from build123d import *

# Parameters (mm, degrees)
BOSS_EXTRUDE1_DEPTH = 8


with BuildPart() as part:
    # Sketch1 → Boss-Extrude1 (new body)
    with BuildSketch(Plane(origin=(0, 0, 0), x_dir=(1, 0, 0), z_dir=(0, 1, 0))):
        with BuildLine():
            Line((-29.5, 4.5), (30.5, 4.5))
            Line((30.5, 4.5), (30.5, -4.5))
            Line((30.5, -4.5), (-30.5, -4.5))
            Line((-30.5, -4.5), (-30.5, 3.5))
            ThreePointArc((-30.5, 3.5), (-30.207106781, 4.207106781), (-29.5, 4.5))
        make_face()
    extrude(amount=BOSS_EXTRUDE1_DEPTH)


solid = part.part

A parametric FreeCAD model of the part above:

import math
import FreeCAD as App
import Part
import Sketcher

doc = App.newDocument("Part")
params = doc.addObject("Spreadsheet::Sheet", "Params")
for row, (alias, value) in enumerate([
    ("sketch1_radius", "1 mm"),
    ("sketch1_width", "60 mm"),
    ("sketch1_height", "8 mm"),
    ("pad1_length", "8 mm"),
], start=1):
    params.set(f"A{row}", alias)
    params.set(f"B{row}", "=" + value)
    params.setAlias(f"B{row}", alias)

body = doc.addObject("PartDesign::Body", "Body")

# Sketch on XZ plane
sketch1 = body.newObject("Sketcher::SketchObject", "Sketch")
sketch1.AttachmentSupport = (doc.getObject("XZ_Plane"), [""])
sketch1.MapMode = "FlatFace"
sketch1.addGeometry([
    Part.LineSegment(App.Vector(30.5, -4.5, 0), App.Vector(-29.5, -4.5, 0)),  # 0
    Part.ArcOfCircle(Part.Circle(App.Vector(-29.5, -3.5, 0), App.Vector(0, 0, 1), 1), math.radians(-180), math.radians(-90)),  # 1
    Part.LineSegment(App.Vector(-30.5, -3.5, 0), App.Vector(-30.5, 4.5, 0)),  # 2
    Part.LineSegment(App.Vector(-30.5, 4.5, 0), App.Vector(30.5, 4.5, 0)),  # 3
    Part.LineSegment(App.Vector(30.5, 4.5, 0), App.Vector(30.5, -4.5, 0)),  # 4
], False)
sketch1.addConstraint([
    Sketcher.Constraint("Tangent", 0, 2, 1, 2),
    Sketcher.Constraint("Tangent", 1, 1, 2, 1),
    Sketcher.Constraint("Coincident", 2, 2, 3, 1),
    Sketcher.Constraint("Coincident", 3, 2, 4, 1),
    Sketcher.Constraint("Coincident", 4, 2, 0, 1),
    Sketcher.Constraint("Horizontal", 0),
    Sketcher.Constraint("Vertical", 2),
    Sketcher.Constraint("Horizontal", 3),
    Sketcher.Constraint("Vertical", 4),
    Sketcher.Constraint("Symmetric", 2, 2, 4, 2, -1, 1),
    Sketcher.Constraint("Radius", 1, 1.0),
    Sketcher.Constraint("DistanceX", 0, 2, 0, 1, 60.0),
    Sketcher.Constraint("DistanceY", 2, 1, 2, 2, 8.0),
])
sketch1.setExpression("Constraints[10]", "Params.sketch1_radius")
sketch1.setExpression("Constraints[11]", "Params.sketch1_width")
sketch1.setExpression("Constraints[12]", "Params.sketch1_height")
pad1 = body.newObject("PartDesign::Pad", "Pad")
pad1.Profile = sketch1
pad1.setExpression("Length", "Params.pad1_length")
pad1.Reversed = True

doc.recompute()
